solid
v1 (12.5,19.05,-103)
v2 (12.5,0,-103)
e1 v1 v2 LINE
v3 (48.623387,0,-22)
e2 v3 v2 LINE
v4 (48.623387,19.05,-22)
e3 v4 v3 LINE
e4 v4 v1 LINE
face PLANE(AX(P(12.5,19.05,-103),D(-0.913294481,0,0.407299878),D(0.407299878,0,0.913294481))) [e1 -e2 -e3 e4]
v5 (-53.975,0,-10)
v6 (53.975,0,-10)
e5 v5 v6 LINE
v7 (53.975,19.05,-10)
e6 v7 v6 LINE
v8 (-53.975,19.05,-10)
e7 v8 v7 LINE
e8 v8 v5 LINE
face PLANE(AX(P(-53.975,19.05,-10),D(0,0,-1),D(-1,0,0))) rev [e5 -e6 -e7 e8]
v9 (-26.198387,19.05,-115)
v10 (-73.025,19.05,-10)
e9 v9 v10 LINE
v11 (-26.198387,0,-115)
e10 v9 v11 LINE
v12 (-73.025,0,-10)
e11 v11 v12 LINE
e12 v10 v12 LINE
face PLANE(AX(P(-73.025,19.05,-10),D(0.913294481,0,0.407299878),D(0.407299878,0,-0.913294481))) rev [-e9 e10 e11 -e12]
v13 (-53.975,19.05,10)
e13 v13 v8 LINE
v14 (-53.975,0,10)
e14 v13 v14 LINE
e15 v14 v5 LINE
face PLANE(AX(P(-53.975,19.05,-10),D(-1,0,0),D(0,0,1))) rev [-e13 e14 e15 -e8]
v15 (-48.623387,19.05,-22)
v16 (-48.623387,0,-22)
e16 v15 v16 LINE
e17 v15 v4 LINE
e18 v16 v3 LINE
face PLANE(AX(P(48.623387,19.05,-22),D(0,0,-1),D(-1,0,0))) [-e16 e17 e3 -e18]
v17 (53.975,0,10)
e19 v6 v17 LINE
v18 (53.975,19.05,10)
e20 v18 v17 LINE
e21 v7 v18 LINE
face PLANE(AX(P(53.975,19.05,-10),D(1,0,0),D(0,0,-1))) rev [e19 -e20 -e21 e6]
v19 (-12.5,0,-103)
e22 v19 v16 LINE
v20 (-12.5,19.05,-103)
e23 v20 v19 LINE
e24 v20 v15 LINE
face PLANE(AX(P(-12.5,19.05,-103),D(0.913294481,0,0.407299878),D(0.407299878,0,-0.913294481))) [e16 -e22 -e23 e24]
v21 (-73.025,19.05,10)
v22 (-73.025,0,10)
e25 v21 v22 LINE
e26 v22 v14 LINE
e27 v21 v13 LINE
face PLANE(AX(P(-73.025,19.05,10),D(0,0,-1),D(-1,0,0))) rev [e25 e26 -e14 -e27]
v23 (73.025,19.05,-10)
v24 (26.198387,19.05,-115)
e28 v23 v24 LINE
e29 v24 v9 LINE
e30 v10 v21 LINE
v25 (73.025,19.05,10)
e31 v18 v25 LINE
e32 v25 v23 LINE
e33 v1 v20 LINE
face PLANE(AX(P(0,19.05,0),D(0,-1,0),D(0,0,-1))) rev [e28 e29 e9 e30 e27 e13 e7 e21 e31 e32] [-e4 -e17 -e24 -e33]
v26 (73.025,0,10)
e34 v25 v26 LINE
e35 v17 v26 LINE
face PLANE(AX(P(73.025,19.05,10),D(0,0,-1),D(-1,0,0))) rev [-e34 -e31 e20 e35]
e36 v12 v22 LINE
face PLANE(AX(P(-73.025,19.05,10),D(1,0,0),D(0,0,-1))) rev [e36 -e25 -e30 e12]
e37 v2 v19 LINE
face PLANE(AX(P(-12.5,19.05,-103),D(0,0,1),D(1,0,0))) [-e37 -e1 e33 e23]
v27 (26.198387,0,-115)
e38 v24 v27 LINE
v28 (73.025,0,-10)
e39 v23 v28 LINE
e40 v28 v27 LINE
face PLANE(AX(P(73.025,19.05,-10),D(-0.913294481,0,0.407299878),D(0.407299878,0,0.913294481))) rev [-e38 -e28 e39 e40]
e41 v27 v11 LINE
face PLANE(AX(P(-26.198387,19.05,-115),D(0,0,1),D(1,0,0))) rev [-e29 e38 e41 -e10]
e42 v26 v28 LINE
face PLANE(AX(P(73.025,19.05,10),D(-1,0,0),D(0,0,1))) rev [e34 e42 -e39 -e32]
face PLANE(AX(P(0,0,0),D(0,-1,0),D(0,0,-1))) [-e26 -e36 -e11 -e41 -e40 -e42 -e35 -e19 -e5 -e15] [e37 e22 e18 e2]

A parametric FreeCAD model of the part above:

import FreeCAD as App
import Part
import Sketcher

V = App.Vector
Q = App.Units.Quantity


def add_polygon(sketch, points):
    """Adds a closed chain of lines whose ends are joined by coincident constraints."""
    first, n = sketch.GeometryCount, len(points)
    for a, b in zip(points, points[1:] + points[:1]):
        sketch.addGeometry(Part.LineSegment(App.Vector(*a, 0), App.Vector(*b, 0)), False)
    for i in range(n):
        sketch.addConstraint(Sketcher.Constraint("Coincident", first + i, 2, first + (i + 1) % n, 1))

doc = App.newDocument("Part")
params = doc.addObject("Spreadsheet::Sheet", "Params")
for row, (alias, value) in enumerate([
    ("sketch1_width", "25 mm"),
    ("sketch1_height", "20 mm"),
    ("sketch1_width2", "19.05 mm"),
    ("pad1_length", "19.05 mm"),
], start=1):
    params.set(f"A{row}", alias)
    params.set(f"B{row}", "=" + value)
    params.setAlias(f"B{row}", alias)

body = doc.addObject("PartDesign::Body", "Body")

sketch1 = body.newObject("Sketcher::SketchObject", "Sketch")
sketch1.AttachmentSupport = (doc.getObject("XZ_Plane"), [""])
sketch1.MapMode = "FlatFace"
add_polygon(sketch1, [(-73, 10), (-54, 10), (-54, -10), (54, -10), (54, 10), (73, 10), (73, -10), (26, -115), (-26, -115), (-73, -10)])
add_polygon(sketch1, [(-49, -22), (-12, -103), (12, -103), (49, -22)])
sketch1.addConstraint([
    Sketcher.Constraint("Horizontal", 0),
    Sketcher.Constraint("Vertical", 1),
    Sketcher.Constraint("Horizontal", 2),
    Sketcher.Constraint("Vertical", 3),
    Sketcher.Constraint("Horizontal", 4),
    Sketcher.Constraint("Vertical", 5),
    Sketcher.Constraint("Horizontal", 7),
    Sketcher.Constraint("Vertical", 9),
    Sketcher.Constraint("Horizontal", 11),
    Sketcher.Constraint("Horizontal", 13),
    Sketcher.Constraint("Symmetric", 0, 2, 2, 2, -1, 1),
    Sketcher.Constraint("Symmetric", 4, 2, 8, 2, -1, 1),
    Sketcher.Constraint("Parallel", 8, 10),
    Sketcher.Constraint("Parallel", 6, 12),
    Sketcher.Constraint("Horizontal", 0, 2, 3, 2),
    Sketcher.Constraint("Horizontal", 2, 2, 5, 2),
    Sketcher.Constraint("Equal", 6, 8),
    Sketcher.Constraint("DistanceX", 11, 1, 11, 2, Q("25 mm")),
    Sketcher.Constraint("DistanceY", 1, 2, 1, 1, Q("20 mm")),
    Sketcher.Constraint("DistanceY", 6, 2, -1, 1, Q("115 mm")),
    Sketcher.Constraint("DistanceY", 10, 2, -1, 1, Q("103 mm")),
    Sketcher.Constraint("DistanceY", 12, 2, -1, 1, Q("22 mm")),
    Sketcher.Constraint("DistanceX", 0, 2, 4, 2, Q("127 mm")),
    Sketcher.Constraint("DistanceX", 0, 1, 0, 2, Q("19.05 mm")),
    Sketcher.Constraint("DistanceX", 10, 2, -1, 1, Q("12.5 mm")),
    Sketcher.Constraint("DistanceX", 7, 2, 7, 1, Q("52.396774 mm")),
])
sketch1.setExpression("Constraints[31]", "Params.sketch1_width")
sketch1.setExpression("Constraints[32]", "Params.sketch1_height")
sketch1.setExpression("Constraints[37]", "Params.sketch1_width2")
pad1 = body.newObject("PartDesign::Pad", "Pad")
pad1.Profile = sketch1
pad1.setExpression("Length", "Params.pad1_length")
pad1.Reversed = True

doc.recompute()
